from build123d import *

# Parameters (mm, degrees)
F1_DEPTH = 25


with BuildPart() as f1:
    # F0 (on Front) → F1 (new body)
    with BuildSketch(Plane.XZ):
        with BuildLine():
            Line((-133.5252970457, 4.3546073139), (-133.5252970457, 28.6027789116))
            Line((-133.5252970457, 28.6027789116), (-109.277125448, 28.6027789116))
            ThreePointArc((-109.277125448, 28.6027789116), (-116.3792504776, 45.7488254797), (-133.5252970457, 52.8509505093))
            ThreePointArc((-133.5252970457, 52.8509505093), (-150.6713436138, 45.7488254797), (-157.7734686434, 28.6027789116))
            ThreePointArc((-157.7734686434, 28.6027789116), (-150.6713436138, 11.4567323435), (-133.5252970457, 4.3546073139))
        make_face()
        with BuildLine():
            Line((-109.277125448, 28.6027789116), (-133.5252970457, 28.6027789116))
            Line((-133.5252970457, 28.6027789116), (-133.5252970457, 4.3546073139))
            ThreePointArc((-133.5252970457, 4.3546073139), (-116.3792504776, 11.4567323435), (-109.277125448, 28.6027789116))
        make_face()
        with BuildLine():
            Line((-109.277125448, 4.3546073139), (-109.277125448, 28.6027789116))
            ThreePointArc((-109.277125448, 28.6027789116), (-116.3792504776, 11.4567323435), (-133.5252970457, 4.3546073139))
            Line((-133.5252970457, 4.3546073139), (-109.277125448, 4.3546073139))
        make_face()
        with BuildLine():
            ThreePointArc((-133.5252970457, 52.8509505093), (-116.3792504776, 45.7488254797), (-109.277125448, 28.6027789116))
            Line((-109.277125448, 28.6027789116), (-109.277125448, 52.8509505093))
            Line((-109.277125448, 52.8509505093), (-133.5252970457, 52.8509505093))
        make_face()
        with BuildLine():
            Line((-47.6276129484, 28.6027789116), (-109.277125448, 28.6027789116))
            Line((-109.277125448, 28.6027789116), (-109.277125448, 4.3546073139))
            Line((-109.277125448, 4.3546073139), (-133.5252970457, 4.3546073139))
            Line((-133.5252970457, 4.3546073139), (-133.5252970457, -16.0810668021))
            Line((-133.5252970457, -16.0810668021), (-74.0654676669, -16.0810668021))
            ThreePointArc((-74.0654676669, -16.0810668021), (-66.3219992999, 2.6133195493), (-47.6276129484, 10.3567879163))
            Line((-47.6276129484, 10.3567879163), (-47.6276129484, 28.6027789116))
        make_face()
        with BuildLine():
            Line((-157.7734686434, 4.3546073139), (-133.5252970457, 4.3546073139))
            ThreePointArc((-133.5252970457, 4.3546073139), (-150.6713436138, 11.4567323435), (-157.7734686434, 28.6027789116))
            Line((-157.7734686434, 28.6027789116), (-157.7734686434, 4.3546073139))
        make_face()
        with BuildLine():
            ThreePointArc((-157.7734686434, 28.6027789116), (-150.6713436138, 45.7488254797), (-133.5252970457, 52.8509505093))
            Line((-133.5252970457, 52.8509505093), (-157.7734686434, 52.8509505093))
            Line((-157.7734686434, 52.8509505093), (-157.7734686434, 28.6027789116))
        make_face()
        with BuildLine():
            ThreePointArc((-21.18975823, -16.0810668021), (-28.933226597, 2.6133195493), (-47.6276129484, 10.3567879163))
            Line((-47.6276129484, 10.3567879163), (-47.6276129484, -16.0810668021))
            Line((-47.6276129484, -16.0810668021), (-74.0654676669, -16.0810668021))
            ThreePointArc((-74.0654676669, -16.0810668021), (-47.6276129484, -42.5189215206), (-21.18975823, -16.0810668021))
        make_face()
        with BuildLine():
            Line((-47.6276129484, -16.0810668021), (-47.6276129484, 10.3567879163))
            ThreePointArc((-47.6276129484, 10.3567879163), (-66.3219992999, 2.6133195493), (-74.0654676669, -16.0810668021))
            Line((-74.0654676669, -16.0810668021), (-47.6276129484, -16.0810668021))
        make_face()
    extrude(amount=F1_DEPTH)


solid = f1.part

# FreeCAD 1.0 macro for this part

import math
import FreeCAD as App
import Part
import Sketcher
from FreeCAD import Vector

doc = App.newDocument("Part")
body = doc.addObject("PartDesign::Body", "Body")

# Sketch on XZ plane
sketch1 = body.newObject("Sketcher::SketchObject", "Sketch")
sketch1.AttachmentSupport = (doc.getObject("XZ_Plane"), [""])
sketch1.MapMode = "FlatFace"
sketch1.addGeometry(Part.LineSegment(Vector(-158, 4, 0), Vector(-134, 4, 0)), False)
sketch1.addGeometry(Part.LineSegment(Vector(-134, 4, 0), Vector(-134, -16, 0)), False)
sketch1.addGeometry(Part.LineSegment(Vector(-134, -16, 0), Vector(-74, -16, 0)), False)
sketch1.addGeometry(Part.ArcOfCircle(Part.Circle(Vector(-48, -16, 0), Vector(0, 0, 1), 26), math.radians(180), math.radians(360)), False)
sketch1.addGeometry(Part.ArcOfCircle(Part.Circle(Vector(-48, -16, 0), Vector(0, 0, 1), 26), math.radians(0), math.radians(90)), False)
sketch1.addGeometry(Part.LineSegment(Vector(-48, 10, 0), Vector(-48, 29, 0)), False)
sketch1.addGeometry(Part.LineSegment(Vector(-48, 29, 0), Vector(-109, 29, 0)), False)
sketch1.addGeometry(Part.LineSegment(Vector(-109, 29, 0), Vector(-109, 53, 0)), False)
sketch1.addGeometry(Part.LineSegment(Vector(-109, 53, 0), Vector(-158, 53, 0)), False)
sketch1.addGeometry(Part.LineSegment(Vector(-158, 53, 0), Vector(-158, 4, 0)), False)
sketch1.addConstraint(Sketcher.Constraint("Coincident", 0, 2, 1, 1))
sketch1.addConstraint(Sketcher.Constraint("Coincident", 1, 2, 2, 1))
sketch1.addConstraint(Sketcher.Constraint("Coincident", 2, 2, 3, 1))
sketch1.addConstraint(Sketcher.Constraint("Tangent", 3, 2, 4, 1))
sketch1.addConstraint(Sketcher.Constraint("Coincident", 4, 2, 5, 1))
sketch1.addConstraint(Sketcher.Constraint("Coincident", 5, 2, 6, 1))
sketch1.addConstraint(Sketcher.Constraint("Coincident", 6, 2, 7, 1))
sketch1.addConstraint(Sketcher.Constraint("Coincident", 7, 2, 8, 1))
sketch1.addConstraint(Sketcher.Constraint("Coincident", 8, 2, 9, 1))
sketch1.addConstraint(Sketcher.Constraint("Coincident", 9, 2, 0, 1))
sketch1.addConstraint(Sketcher.Constraint("Horizontal", 0))
sketch1.addConstraint(Sketcher.Constraint("Vertical", 1))
sketch1.addConstraint(Sketcher.Constraint("Horizontal", 2))
sketch1.addConstraint(Sketcher.Constraint("Vertical", 5))
sketch1.addConstraint(Sketcher.Constraint("Horizontal", 6))
sketch1.addConstraint(Sketcher.Constraint("Vertical", 7))
sketch1.addConstraint(Sketcher.Constraint("Horizontal", 8))
sketch1.addConstraint(Sketcher.Constraint("Vertical", 9))
sketch1.addConstraint(Sketcher.Constraint("Equal", 3, 4))
sketch1.addConstraint(Sketcher.Constraint("Horizontal", 4, 3, 1, 2))
sketch1.addConstraint(Sketcher.Constraint("Horizontal", 2, 2, 3, 2))
sketch1.addConstraint(Sketcher.Constraint("Vertical", 3, 3, 4, 2))
sketch1.addConstraint(Sketcher.Constraint("Equal", 0, 7))
sketch1.addConstraint(Sketcher.Constraint("Equal", 8, 9))
sketch1.addConstraint(Sketcher.Constraint("Radius", 3, 26.437855))
sketch1.addConstraint(Sketcher.Constraint("DistanceX", 8, 2, 2, 2, 83.708001))
sketch1.addConstraint(Sketcher.Constraint("DistanceX", 0, 1, 0, 2, 24.248172))
sketch1.addConstraint(Sketcher.Constraint("DistanceY", 5, 1, 5, 2, 18.245991))
sketch1.addConstraint(Sketcher.Constraint("DistanceX", 6, 2, 6, 1, 61.649513))
sketch1.addConstraint(Sketcher.Constraint("DistanceX", 3, 2, -1, 1, 21.189758))
sketch1.addConstraint(Sketcher.Constraint("DistanceY", -1, 1, 5, 2, 28.602779))
pad1 = body.newObject("PartDesign::Pad", "Pad")
pad1.Profile = sketch1
pad1.Length = 25

doc.recompute()
